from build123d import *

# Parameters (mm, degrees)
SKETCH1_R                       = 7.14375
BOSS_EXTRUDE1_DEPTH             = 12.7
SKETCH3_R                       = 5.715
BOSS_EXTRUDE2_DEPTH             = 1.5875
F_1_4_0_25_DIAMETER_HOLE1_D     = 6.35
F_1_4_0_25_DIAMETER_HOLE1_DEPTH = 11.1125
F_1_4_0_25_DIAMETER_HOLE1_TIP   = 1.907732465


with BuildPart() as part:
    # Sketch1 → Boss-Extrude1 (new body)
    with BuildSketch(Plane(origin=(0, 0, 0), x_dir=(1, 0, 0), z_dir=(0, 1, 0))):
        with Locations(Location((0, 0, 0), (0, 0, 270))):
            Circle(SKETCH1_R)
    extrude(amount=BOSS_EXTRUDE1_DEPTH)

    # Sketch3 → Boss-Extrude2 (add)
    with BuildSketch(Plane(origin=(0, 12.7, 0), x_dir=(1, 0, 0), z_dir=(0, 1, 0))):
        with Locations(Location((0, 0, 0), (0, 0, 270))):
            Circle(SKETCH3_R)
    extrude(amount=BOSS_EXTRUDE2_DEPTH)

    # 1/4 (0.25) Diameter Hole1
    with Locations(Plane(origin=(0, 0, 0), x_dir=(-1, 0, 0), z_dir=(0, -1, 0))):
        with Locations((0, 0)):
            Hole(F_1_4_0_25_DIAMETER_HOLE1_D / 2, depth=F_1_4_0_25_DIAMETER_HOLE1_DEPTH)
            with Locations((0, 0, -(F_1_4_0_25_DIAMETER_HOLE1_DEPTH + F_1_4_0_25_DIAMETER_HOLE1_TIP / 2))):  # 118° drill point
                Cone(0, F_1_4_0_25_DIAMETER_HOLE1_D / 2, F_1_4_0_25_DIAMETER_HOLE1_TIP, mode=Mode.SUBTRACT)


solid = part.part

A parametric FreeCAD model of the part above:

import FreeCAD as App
import Part
import Sketcher
Q = App.Units.Quantity

doc = App.newDocument("Part")
params = doc.addObject("Spreadsheet::Sheet", "Params")
for row, (alias, value) in enumerate([
    ("sketch1_diameter", "0.5625 in"),
    ("pad1_length", "0.5 in"),
    ("sketch2_diameter", "0.45 in"),
    ("pad2_length", "0.0625 in"),
    ("sketch3_diameter", "0.25 in"),
    ("hole_diameter", "0.25 in"),
    ("hole_depth", "0.4375 in"),
], start=1):
    params.set(f"A{row}", alias)
    params.set(f"B{row}", "=" + value)
    params.setAlias(f"B{row}", alias)

body = doc.addObject("PartDesign::Body", "Body")

# Sketch on XZ plane
sketch1 = body.newObject("Sketcher::SketchObject", "Sketch")
sketch1.AttachmentSupport = (doc.getObject("XZ_Plane"), [""])
sketch1.MapMode = "FlatFace"
sketch1.addGeometry(Part.Circle(App.Vector(0, 0, 0), App.Vector(0, 0, 1), 7), False)
sketch1.addConstraint(Sketcher.Constraint("Coincident", 0, 3, -1, 1))
sketch1.addConstraint(Sketcher.Constraint("Diameter", 0, Q("0.5625 in")))
sketch1.setExpression("Constraints[1]", "Params.sketch1_diameter")
pad1 = body.newObject("PartDesign::Pad", "Pad")
pad1.Profile = sketch1
pad1.setExpression("Length", "Params.pad1_length")
pad1.Reversed = True

# Sketch on XZ plane
sketch2 = body.newObject("Sketcher::SketchObject", "Sketch001")
sketch2.AttachmentSupport = (doc.getObject("XZ_Plane"), [""])
sketch2.MapMode = "FlatFace"
sketch2.AttachmentOffset = App.Placement(App.Vector(0, 0, -0.5 * 25.4), App.Rotation())
sketch2.addGeometry(Part.Circle(App.Vector(0, 0, 0), App.Vector(0, 0, 1), 6), False)
sketch2.addConstraint(Sketcher.Constraint("Coincident", 0, 3, -1, 1))
sketch2.addConstraint(Sketcher.Constraint("Diameter", 0, Q("0.45 in")))
sketch2.setExpression("Constraints[1]", "Params.sketch2_diameter")
pad2 = body.newObject("PartDesign::Pad", "Pad001")
pad2.Profile = sketch2
pad2.setExpression("Length", "Params.pad2_length")
pad2.Reversed = True

# Sketch on XZ plane
sketch3 = body.newObject("Sketcher::SketchObject", "Sketch002")
sketch3.AttachmentSupport = (doc.getObject("XZ_Plane"), [""])
sketch3.MapMode = "FlatFace"
sketch3.addGeometry(Part.Circle(App.Vector(0, 0, 0), App.Vector(0, 0, 1), 3.2), False)
sketch3.addConstraint(Sketcher.Constraint("Coincident", 0, 3, -1, 1))
sketch3.addConstraint(Sketcher.Constraint("Diameter", 0, Q("0.25 in")))
sketch3.setExpression("Constraints[1]", "Params.sketch3_diameter")
doc.recompute()
hole = body.newObject("PartDesign::Hole", "Hole")
hole.Profile = sketch3
hole.ThreadType = "None"
hole.setExpression("Diameter", "Params.hole_diameter")
hole.DepthType = "Dimension"
hole.setExpression("Depth", "Params.hole_depth")
hole.DrillPoint = "Angled"
hole.DrillPointAngle = 118

doc.recompute()
